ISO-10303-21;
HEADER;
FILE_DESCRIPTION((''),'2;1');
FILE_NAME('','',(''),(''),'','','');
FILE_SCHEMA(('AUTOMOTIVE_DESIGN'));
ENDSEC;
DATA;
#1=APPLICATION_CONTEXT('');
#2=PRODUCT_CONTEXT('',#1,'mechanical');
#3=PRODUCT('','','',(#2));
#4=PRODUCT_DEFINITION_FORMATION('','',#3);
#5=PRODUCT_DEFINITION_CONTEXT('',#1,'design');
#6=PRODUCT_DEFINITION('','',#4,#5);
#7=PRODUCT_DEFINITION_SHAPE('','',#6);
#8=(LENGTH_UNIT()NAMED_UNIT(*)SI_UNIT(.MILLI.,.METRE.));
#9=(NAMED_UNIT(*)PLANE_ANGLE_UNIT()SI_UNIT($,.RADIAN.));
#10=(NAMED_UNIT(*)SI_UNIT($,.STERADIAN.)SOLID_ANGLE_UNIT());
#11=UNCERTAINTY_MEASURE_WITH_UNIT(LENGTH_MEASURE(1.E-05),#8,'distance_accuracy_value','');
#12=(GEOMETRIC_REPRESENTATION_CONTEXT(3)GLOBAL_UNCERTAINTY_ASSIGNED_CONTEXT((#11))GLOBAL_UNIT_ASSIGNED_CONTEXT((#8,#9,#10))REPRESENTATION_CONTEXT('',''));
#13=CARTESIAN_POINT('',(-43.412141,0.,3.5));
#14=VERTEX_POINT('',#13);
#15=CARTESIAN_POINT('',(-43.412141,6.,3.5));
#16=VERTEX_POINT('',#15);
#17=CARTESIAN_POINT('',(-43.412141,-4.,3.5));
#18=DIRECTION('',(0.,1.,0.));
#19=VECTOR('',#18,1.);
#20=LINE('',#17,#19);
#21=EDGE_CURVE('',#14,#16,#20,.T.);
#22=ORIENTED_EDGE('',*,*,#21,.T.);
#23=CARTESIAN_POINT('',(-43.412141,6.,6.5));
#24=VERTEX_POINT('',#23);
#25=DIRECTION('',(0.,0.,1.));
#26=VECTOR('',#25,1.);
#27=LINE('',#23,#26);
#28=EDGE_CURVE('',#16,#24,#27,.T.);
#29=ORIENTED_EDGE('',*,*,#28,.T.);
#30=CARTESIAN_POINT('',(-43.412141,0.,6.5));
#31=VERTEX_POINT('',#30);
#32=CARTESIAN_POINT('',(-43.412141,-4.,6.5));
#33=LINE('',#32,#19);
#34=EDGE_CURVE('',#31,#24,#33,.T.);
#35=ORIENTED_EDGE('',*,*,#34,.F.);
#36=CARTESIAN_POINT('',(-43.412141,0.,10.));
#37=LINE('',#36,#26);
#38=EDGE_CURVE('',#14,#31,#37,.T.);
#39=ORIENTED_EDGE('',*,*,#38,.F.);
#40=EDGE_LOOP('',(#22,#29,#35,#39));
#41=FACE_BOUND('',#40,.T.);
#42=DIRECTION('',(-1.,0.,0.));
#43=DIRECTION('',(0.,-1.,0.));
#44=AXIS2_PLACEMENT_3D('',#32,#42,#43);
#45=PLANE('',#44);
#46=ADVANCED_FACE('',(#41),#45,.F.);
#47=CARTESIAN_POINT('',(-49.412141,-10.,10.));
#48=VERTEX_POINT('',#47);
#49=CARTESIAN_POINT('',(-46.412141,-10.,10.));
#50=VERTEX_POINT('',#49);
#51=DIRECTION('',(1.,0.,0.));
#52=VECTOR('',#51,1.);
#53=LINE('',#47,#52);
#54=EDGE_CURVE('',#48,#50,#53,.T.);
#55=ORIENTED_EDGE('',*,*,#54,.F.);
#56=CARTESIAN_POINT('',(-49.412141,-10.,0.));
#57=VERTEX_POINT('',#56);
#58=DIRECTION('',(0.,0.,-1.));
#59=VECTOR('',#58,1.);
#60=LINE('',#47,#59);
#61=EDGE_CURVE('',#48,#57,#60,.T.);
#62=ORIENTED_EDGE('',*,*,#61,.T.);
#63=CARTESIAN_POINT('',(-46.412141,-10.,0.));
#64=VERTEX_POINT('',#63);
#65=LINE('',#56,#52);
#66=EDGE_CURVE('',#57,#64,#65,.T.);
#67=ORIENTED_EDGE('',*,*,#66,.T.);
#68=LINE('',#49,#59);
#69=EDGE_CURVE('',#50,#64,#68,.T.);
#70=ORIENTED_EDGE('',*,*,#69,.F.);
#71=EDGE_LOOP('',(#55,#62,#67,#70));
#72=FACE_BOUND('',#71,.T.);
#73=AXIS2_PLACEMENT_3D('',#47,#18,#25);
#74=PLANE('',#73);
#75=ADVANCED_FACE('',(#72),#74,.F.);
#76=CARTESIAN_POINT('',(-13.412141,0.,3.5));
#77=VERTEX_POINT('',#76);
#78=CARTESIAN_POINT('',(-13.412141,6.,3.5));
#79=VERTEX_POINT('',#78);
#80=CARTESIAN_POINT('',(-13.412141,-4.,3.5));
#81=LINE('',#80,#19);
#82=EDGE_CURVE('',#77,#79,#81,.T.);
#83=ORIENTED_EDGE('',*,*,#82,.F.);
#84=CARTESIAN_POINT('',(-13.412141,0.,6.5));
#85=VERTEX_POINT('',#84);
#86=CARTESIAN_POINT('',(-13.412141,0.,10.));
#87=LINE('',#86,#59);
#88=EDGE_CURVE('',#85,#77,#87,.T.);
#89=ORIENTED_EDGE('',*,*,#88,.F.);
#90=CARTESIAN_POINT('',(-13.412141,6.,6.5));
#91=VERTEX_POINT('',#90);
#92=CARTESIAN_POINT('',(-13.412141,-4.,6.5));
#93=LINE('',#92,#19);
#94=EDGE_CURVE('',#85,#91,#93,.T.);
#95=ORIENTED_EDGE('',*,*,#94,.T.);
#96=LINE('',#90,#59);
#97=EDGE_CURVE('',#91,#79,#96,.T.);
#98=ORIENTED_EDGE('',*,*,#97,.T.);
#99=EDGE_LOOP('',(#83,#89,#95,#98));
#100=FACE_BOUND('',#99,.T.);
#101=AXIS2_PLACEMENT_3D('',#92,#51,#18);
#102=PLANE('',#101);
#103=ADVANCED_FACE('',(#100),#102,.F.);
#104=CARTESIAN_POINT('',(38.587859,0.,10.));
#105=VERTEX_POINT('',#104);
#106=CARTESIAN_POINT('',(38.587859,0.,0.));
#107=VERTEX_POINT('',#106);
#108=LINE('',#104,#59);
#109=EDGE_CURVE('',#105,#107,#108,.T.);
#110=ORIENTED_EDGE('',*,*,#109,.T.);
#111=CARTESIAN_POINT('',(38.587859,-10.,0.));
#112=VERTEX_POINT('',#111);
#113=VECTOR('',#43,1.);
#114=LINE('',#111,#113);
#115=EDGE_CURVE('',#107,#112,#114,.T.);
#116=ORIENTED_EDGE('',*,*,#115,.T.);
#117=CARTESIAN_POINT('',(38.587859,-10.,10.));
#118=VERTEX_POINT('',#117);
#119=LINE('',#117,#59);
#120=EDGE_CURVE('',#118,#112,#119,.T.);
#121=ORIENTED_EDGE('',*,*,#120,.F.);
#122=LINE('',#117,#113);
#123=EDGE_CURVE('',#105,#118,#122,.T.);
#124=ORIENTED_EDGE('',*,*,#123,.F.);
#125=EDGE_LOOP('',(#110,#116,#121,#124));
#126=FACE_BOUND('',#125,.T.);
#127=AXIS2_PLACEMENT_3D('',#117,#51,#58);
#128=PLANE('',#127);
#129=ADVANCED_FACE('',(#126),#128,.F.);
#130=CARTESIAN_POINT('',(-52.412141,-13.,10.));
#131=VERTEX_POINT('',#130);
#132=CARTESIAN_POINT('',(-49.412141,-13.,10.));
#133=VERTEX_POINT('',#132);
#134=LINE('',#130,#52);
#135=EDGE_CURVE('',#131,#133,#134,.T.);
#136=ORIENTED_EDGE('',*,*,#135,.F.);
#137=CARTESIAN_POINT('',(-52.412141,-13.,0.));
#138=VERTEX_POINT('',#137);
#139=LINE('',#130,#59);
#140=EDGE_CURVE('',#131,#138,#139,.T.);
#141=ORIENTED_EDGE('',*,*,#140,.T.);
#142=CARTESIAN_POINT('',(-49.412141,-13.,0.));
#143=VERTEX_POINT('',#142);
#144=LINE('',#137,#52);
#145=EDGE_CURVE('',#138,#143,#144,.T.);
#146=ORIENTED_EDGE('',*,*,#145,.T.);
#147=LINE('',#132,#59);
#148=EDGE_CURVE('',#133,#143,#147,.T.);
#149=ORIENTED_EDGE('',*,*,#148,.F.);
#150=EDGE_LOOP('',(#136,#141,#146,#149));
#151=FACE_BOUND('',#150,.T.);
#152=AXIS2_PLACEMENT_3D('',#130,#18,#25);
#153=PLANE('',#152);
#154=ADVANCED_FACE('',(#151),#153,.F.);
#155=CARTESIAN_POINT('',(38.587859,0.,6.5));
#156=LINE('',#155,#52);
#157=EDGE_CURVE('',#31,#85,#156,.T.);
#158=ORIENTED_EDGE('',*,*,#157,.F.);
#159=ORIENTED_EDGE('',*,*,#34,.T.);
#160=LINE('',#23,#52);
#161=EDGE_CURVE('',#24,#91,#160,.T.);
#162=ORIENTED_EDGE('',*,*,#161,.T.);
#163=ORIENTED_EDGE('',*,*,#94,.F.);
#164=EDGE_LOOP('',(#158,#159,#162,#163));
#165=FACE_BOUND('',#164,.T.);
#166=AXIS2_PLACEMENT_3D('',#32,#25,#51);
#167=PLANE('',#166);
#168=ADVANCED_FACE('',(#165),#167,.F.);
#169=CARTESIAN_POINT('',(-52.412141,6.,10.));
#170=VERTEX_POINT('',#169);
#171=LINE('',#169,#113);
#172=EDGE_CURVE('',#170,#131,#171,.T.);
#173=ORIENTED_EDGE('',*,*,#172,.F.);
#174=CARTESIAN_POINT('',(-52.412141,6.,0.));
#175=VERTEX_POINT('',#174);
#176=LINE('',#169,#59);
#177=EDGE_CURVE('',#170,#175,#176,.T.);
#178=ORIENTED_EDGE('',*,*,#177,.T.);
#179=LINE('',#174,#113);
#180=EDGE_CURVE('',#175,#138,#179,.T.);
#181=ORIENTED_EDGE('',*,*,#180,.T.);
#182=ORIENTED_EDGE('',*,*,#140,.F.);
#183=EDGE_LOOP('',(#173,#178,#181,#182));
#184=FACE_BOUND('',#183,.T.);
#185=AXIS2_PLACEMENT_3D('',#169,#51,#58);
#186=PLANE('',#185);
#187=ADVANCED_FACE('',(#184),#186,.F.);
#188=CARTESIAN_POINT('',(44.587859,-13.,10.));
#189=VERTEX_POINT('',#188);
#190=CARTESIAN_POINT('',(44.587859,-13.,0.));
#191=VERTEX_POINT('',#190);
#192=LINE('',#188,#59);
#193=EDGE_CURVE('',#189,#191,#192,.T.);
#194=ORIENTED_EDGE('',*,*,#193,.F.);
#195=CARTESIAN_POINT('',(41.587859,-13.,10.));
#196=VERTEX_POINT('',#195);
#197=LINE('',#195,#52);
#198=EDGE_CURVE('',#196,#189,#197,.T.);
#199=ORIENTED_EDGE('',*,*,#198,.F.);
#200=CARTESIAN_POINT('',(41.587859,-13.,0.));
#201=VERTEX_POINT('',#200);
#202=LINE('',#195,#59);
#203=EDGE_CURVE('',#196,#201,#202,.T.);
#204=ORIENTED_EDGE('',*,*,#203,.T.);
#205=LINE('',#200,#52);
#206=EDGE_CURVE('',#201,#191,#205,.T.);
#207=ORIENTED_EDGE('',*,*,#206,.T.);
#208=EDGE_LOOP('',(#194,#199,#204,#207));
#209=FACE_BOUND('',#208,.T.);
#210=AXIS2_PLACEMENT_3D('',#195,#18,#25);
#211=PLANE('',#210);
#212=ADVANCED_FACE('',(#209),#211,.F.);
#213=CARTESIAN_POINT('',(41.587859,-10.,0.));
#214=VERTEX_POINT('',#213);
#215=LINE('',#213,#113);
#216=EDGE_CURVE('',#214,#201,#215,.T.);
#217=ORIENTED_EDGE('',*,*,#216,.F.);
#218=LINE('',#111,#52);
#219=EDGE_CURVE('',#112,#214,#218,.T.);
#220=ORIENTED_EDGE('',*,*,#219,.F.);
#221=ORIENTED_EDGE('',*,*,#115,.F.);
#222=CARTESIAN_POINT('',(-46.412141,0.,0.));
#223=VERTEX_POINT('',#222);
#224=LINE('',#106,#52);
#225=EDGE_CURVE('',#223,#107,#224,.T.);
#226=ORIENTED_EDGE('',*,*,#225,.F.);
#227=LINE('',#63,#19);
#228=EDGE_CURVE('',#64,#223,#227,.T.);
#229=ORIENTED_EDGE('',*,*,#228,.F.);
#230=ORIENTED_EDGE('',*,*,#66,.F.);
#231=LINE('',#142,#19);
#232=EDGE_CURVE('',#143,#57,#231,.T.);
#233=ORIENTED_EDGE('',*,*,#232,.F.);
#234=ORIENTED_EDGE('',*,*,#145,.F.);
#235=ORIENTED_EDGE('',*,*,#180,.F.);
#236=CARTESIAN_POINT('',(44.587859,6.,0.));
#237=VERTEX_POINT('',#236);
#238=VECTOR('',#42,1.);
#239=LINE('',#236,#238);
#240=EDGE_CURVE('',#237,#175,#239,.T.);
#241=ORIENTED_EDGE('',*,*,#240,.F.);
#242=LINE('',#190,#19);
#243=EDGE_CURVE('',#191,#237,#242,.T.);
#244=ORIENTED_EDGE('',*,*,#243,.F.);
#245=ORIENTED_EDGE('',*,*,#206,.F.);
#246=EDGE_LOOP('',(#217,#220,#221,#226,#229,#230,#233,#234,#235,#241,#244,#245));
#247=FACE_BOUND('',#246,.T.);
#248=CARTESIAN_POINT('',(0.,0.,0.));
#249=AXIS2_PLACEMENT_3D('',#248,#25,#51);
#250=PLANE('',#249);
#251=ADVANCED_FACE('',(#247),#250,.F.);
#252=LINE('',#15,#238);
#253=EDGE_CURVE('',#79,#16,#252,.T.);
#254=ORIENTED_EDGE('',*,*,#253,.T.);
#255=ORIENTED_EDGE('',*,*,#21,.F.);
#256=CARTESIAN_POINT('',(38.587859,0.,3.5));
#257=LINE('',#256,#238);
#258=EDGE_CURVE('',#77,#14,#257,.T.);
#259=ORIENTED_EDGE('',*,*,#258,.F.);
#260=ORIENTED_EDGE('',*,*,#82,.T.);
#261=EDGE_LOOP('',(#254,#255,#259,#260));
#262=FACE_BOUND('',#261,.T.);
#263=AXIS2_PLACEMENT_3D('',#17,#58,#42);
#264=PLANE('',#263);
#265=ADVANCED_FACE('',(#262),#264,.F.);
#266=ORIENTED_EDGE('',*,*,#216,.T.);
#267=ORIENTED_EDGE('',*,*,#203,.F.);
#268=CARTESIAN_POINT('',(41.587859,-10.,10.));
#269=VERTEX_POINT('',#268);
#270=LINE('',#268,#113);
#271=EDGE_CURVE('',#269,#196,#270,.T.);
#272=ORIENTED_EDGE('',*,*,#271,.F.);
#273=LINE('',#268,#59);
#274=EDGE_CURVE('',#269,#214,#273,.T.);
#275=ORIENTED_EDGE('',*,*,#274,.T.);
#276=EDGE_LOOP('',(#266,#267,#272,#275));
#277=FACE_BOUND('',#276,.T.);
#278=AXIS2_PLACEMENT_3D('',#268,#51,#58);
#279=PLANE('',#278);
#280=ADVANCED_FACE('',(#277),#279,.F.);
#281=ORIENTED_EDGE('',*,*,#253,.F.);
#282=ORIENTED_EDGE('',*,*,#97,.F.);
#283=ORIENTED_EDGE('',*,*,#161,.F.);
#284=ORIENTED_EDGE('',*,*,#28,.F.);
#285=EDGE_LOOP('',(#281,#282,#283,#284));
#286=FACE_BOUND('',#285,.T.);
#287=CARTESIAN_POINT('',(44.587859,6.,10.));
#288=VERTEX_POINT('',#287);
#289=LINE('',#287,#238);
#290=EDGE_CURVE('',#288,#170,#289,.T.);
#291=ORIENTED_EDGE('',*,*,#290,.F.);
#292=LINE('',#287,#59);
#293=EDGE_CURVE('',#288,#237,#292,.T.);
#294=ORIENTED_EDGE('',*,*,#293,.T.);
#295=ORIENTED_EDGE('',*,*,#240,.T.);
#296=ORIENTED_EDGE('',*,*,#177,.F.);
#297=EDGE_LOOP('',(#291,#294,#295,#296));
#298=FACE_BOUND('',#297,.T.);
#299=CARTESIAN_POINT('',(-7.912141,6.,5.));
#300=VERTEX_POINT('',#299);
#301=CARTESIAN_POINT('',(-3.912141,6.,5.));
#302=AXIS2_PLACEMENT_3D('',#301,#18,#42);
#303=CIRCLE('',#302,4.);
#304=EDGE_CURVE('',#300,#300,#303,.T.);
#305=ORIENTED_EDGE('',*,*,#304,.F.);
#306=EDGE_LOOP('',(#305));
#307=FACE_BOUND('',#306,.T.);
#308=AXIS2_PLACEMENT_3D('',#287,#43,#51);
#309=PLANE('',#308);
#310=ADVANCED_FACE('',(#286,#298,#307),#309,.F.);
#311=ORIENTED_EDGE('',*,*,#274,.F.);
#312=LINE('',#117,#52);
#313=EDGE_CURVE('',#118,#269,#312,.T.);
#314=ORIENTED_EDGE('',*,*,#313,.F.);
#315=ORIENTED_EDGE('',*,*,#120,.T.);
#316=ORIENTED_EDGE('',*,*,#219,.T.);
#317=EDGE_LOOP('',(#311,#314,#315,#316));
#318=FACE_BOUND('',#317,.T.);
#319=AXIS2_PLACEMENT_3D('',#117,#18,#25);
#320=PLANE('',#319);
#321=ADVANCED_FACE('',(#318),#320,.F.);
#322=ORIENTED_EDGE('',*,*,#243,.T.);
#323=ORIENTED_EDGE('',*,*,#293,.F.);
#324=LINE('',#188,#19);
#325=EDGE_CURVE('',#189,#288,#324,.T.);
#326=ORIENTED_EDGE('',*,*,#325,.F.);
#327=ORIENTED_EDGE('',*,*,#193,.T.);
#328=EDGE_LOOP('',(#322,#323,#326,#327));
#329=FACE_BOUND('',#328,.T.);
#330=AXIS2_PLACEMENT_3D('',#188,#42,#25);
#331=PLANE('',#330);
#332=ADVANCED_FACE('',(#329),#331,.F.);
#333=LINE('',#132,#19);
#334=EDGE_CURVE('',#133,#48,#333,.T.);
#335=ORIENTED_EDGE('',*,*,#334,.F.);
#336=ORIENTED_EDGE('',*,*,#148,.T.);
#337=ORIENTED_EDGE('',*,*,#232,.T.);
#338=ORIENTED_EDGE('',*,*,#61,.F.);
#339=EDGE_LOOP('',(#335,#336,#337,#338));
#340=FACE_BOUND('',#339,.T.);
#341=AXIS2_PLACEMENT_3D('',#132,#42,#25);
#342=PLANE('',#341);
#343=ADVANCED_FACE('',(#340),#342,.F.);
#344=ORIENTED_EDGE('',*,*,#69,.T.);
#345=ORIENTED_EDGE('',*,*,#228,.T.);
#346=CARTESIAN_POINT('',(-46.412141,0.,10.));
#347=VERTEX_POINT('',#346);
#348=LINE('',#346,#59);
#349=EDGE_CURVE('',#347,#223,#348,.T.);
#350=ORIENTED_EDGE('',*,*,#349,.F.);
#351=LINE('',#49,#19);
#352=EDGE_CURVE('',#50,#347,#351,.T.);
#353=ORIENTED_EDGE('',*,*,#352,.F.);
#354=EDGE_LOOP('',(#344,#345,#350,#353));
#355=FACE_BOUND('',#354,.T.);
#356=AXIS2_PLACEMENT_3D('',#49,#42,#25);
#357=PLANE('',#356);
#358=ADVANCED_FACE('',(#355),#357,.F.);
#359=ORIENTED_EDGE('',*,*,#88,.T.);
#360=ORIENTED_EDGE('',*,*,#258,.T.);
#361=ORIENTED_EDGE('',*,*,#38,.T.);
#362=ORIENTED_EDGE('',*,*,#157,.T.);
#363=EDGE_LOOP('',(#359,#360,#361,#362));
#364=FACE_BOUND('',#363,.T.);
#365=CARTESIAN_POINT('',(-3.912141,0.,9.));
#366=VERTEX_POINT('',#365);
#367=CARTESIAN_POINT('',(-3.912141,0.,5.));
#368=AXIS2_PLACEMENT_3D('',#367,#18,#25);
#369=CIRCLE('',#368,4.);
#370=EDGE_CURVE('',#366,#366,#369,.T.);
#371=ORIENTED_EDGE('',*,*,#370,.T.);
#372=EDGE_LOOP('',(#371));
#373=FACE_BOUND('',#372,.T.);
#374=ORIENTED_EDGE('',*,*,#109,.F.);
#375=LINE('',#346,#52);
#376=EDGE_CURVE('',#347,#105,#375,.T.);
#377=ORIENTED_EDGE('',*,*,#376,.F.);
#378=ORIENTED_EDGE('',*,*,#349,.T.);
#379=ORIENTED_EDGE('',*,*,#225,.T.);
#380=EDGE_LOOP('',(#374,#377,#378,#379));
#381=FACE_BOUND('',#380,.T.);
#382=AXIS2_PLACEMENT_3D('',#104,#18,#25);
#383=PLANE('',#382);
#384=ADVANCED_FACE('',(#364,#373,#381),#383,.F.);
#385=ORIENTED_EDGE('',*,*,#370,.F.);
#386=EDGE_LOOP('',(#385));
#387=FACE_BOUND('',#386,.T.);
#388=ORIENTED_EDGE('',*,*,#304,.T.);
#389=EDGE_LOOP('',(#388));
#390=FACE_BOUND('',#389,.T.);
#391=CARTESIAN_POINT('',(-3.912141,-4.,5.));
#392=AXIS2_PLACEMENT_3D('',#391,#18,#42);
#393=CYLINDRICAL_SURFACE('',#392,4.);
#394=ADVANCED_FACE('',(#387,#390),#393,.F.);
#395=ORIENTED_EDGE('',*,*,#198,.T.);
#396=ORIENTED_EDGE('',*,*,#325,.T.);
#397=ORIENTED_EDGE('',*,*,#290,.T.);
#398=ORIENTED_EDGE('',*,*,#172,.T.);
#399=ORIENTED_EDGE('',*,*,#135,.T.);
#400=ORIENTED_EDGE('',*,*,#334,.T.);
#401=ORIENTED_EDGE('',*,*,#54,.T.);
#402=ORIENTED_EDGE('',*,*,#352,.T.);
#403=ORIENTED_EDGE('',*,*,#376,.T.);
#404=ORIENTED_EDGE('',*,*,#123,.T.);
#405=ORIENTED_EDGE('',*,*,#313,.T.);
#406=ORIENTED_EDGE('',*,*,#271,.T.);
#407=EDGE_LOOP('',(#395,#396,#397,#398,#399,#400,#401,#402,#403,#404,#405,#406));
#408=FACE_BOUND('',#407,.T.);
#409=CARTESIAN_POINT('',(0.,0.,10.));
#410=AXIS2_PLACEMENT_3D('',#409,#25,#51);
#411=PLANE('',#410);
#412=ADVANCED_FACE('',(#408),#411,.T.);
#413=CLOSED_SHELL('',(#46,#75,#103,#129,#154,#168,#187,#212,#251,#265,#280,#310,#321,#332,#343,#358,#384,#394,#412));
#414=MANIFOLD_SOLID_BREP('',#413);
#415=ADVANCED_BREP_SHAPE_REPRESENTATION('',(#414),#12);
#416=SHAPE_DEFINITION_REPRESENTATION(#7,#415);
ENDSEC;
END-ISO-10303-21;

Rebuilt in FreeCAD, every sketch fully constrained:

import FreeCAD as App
import Part
import Sketcher
from FreeCAD import Vector
Q = App.Units.Quantity

doc = App.newDocument("Part")
body = doc.addObject("PartDesign::Body", "Body")

# Sketch on XY plane
sketch1 = doc.addObject("Sketcher::SketchObject", "Sketch")
body.addObject(sketch1)
sketch1.AttachmentSupport = (doc.XY_Plane, [""])
sketch1.MapMode = "FlatFace"
sketch1.addGeometry(Part.LineSegment(Vector(38.587859, 0, 0), Vector(38.587859, -10, 0)), False)
sketch1.addGeometry(Part.LineSegment(Vector(38.587859, -10, 0), Vector(41.587859, -10, 0)), False)
sketch1.addGeometry(Part.LineSegment(Vector(41.587859, -10, 0), Vector(41.587859, -13, 0)), False)
sketch1.addGeometry(Part.LineSegment(Vector(41.587859, -13, 0), Vector(44.587859, -13, 0)), False)
sketch1.addGeometry(Part.LineSegment(Vector(44.587859, -13, 0), Vector(44.587859, 6, 0)), False)
sketch1.addGeometry(Part.LineSegment(Vector(44.587859, 6, 0), Vector(-52.412141, 6, 0)), False)
sketch1.addGeometry(Part.LineSegment(Vector(-52.412141, 6, 0), Vector(-52.412141, -13, 0)), False)
sketch1.addGeometry(Part.LineSegment(Vector(-52.412141, -13, 0), Vector(-49.412141, -13, 0)), False)
sketch1.addGeometry(Part.LineSegment(Vector(-49.412141, -13, 0), Vector(-49.412141, -10, 0)), False)
sketch1.addGeometry(Part.LineSegment(Vector(-49.412141, -10, 0), Vector(-46.412141, -10, 0)), False)
sketch1.addGeometry(Part.LineSegment(Vector(-46.412141, -10, 0), Vector(-46.412141, 0, 0)), False)
sketch1.addGeometry(Part.LineSegment(Vector(-46.412141, 0, 0), Vector(38.587859, 0, 0)), False)
sketch1.addConstraint(Sketcher.Constraint("Coincident", 0, 2, 1, 1))
sketch1.addConstraint(Sketcher.Constraint("Coincident", 1, 2, 2, 1))
sketch1.addConstraint(Sketcher.Constraint("Coincident", 2, 2, 3, 1))
sketch1.addConstraint(Sketcher.Constraint("Coincident", 3, 2, 4, 1))
sketch1.addConstraint(Sketcher.Constraint("Coincident", 4, 2, 5, 1))
sketch1.addConstraint(Sketcher.Constraint("Coincident", 5, 2, 6, 1))
sketch1.addConstraint(Sketcher.Constraint("Coincident", 6, 2, 7, 1))
sketch1.addConstraint(Sketcher.Constraint("Coincident", 7, 2, 8, 1))
sketch1.addConstraint(Sketcher.Constraint("Coincident", 8, 2, 9, 1))
sketch1.addConstraint(Sketcher.Constraint("Coincident", 9, 2, 10, 1))
sketch1.addConstraint(Sketcher.Constraint("Coincident", 10, 2, 11, 1))
sketch1.addConstraint(Sketcher.Constraint("Coincident", 11, 2, 0, 1))
sketch1.addConstraint(Sketcher.Constraint("Vertical", 0))
sketch1.addConstraint(Sketcher.Constraint("Horizontal", 1))
sketch1.addConstraint(Sketcher.Constraint("Vertical", 2))
sketch1.addConstraint(Sketcher.Constraint("Horizontal", 3))
sketch1.addConstraint(Sketcher.Constraint("Vertical", 4))
sketch1.addConstraint(Sketcher.Constraint("Horizontal", 5))
sketch1.addConstraint(Sketcher.Constraint("Vertical", 6))
sketch1.addConstraint(Sketcher.Constraint("Horizontal", 7))
sketch1.addConstraint(Sketcher.Constraint("Vertical", 8))
sketch1.addConstraint(Sketcher.Constraint("Horizontal", 9))
sketch1.addConstraint(Sketcher.Constraint("Vertical", 10))
sketch1.addConstraint(Sketcher.Constraint("Horizontal", 11))
sketch1.addConstraint(Sketcher.Constraint("PointOnObject", 10, 2, -1))
sketch1.addConstraint(Sketcher.Constraint("Horizontal", 3, 2, 6, 2))
sketch1.addConstraint(Sketcher.Constraint("Horizontal", 1, 2, 8, 2))
sketch1.addConstraint(Sketcher.Constraint("Equal", 1, 3))
sketch1.addConstraint(Sketcher.Constraint("Equal", 3, 7))
sketch1.addConstraint(Sketcher.Constraint("Equal", 7, 9))
sketch1.addConstraint(Sketcher.Constraint("Equal", 9, 2))
sketch1.addConstraint(Sketcher.Constraint("DistanceX", 1, 1, 1, 2, Q("3 mm")))
sketch1.addConstraint(Sketcher.Constraint("DistanceX", 5, 2, 5, 1, Q("97 mm")))
sketch1.addConstraint(Sketcher.Constraint("DistanceY", 0, 2, 0, 1, Q("10 mm")))
sketch1.addConstraint(Sketcher.Constraint("DistanceY", 4, 1, 4, 2, Q("19 mm")))
sketch1.addConstraint(Sketcher.Constraint("DistanceX", -1, 1, 0, 2, Q("38.587859 mm")))
pad1 = doc.addObject("PartDesign::Pad", "Pad")
body.addObject(pad1)
pad1.Profile = sketch1
pad1.Length = 10

# Sketch on XZ plane
sketch2 = doc.addObject("Sketcher::SketchObject", "Sketch001")
body.addObject(sketch2)
sketch2.AttachmentSupport = (doc.XZ_Plane, [""])
sketch2.MapMode = "FlatFace"
sketch2.AttachmentOffset = App.Placement(Vector(0, 0, -6), App.Rotation())
sketch2.addGeometry(Part.Circle(Vector(-3.912141, 5, 0), Vector(0, 0, 1), 4), False)
sketch2.addGeometry(Part.LineSegment(Vector(-43.412141, 3.5, 0), Vector(-43.412141, 6.5, 0)), False)
sketch2.addGeometry(Part.LineSegment(Vector(-43.412141, 6.5, 0), Vector(-13.412141, 6.5, 0)), False)
sketch2.addGeometry(Part.LineSegment(Vector(-13.412141, 6.5, 0), Vector(-13.412141, 3.5, 0)), False)
sketch2.addGeometry(Part.LineSegment(Vector(-13.412141, 3.5, 0), Vector(-43.412141, 3.5, 0)), False)
sketch2.addConstraint(Sketcher.Constraint("Coincident", 1, 2, 2, 1))
sketch2.addConstraint(Sketcher.Constraint("Coincident", 2, 2, 3, 1))
sketch2.addConstraint(Sketcher.Constraint("Coincident", 3, 2, 4, 1))
sketch2.addConstraint(Sketcher.Constraint("Coincident", 4, 2, 1, 1))
sketch2.addConstraint(Sketcher.Constraint("Vertical", 1))
sketch2.addConstraint(Sketcher.Constraint("Horizontal", 2))
sketch2.addConstraint(Sketcher.Constraint("Vertical", 3))
sketch2.addConstraint(Sketcher.Constraint("Horizontal", 4))
sketch2.addConstraint(Sketcher.Constraint("Diameter", 0, Q("8 mm")))
sketch2.addConstraint(Sketcher.Constraint("DistanceX", 2, 1, 2, 2, Q("30 mm")))
sketch2.addConstraint(Sketcher.Constraint("DistanceY", 1, 1, 1, 2, Q("3 mm")))
sketch2.addConstraint(Sketcher.Constraint("DistanceY", -1, 1, 0, 3, Q("5 mm")))
sketch2.addConstraint(Sketcher.Constraint("DistanceY", -1, 1, 1, 2, Q("6.5 mm")))
sketch2.addConstraint(Sketcher.Constraint("DistanceX", 1, 2, 0, 3, Q("39.5 mm")))
sketch2.addConstraint(Sketcher.Constraint("DistanceX", 0, 3, -1, 1, Q("3.912141 mm")))
pocket1 = doc.addObject("PartDesign::Pocket", "Pocket")
body.addObject(pocket1)
pocket1.Profile = sketch2
pocket1.Length = 10
pocket1.Reversed = True

doc.recompute()
